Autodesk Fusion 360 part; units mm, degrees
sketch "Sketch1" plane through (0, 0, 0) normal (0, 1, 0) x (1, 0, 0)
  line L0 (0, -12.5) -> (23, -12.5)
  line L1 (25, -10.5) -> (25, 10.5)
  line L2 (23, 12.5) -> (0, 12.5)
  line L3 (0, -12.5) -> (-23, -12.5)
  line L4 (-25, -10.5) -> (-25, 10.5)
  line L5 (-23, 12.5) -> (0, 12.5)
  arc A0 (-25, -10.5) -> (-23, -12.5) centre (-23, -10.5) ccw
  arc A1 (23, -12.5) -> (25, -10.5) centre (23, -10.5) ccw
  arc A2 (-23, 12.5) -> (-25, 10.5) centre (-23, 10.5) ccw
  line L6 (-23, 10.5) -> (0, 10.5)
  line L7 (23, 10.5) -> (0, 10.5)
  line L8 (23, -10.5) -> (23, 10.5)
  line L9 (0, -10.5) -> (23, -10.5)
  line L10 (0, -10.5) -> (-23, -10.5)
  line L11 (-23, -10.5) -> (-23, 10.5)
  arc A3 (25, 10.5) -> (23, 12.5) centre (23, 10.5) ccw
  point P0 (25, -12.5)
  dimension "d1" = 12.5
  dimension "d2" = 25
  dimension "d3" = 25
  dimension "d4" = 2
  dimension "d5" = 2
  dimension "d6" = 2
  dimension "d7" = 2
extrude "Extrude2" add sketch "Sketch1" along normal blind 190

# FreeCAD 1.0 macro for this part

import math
import FreeCAD as App
import Part
import Sketcher

V = App.Vector

doc = App.newDocument("Part")
body = doc.addObject("PartDesign::Body", "Body")

# Sketch on XZ plane
sketch1 = body.newObject("Sketcher::SketchObject", "Sketch")
sketch1.AttachmentSupport = (doc.getObject("XZ_Plane"), [""])
sketch1.MapMode = "FlatFace"
sketch1.addGeometry(Part.LineSegment(V(-23, 12.5, 0), V(23, 12.5, 0)), False)
sketch1.addGeometry(Part.ArcOfCircle(Part.Circle(V(23, 10.5, 0), V(0, 0, 1), 2), math.radians(0), math.radians(90)), False)
sketch1.addGeometry(Part.LineSegment(V(25, 10.5, 0), V(25, -10.5, 0)), False)
sketch1.addGeometry(Part.ArcOfCircle(Part.Circle(V(23, -10.5, 0), V(0, 0, 1), 2), math.radians(-90), math.radians(0)), False)
sketch1.addGeometry(Part.LineSegment(V(23, -12.5, 0), V(-23, -12.5, 0)), False)
sketch1.addGeometry(Part.ArcOfCircle(Part.Circle(V(-23, -10.5, 0), V(0, 0, 1), 2), math.radians(180), math.radians(270)), False)
sketch1.addGeometry(Part.LineSegment(V(-25, -10.5, 0), V(-25, 10.5, 0)), False)
sketch1.addGeometry(Part.ArcOfCircle(Part.Circle(V(-23, 10.5, 0), V(0, 0, 1), 2), math.radians(90), math.radians(180)), False)
sketch1.addGeometry(Part.LineSegment(V(-23, 10.5, 0), V(-23, -10.5, 0)), False)
sketch1.addGeometry(Part.LineSegment(V(-23, -10.5, 0), V(23, -10.5, 0)), False)
sketch1.addGeometry(Part.LineSegment(V(23, -10.5, 0), V(23, 10.5, 0)), False)
sketch1.addGeometry(Part.LineSegment(V(23, 10.5, 0), V(-23, 10.5, 0)), False)
sketch1.addConstraint(Sketcher.Constraint("Tangent", 0, 2, 1, 2))
sketch1.addConstraint(Sketcher.Constraint("Tangent", 1, 1, 2, 1))
sketch1.addConstraint(Sketcher.Constraint("Tangent", 2, 2, 3, 2))
sketch1.addConstraint(Sketcher.Constraint("Tangent", 3, 1, 4, 1))
sketch1.addConstraint(Sketcher.Constraint("Tangent", 4, 2, 5, 2))
sketch1.addConstraint(Sketcher.Constraint("Tangent", 5, 1, 6, 1))
sketch1.addConstraint(Sketcher.Constraint("Tangent", 6, 2, 7, 2))
sketch1.addConstraint(Sketcher.Constraint("Tangent", 7, 1, 0, 1))
sketch1.addConstraint(Sketcher.Constraint("Coincident", 8, 2, 9, 1))
sketch1.addConstraint(Sketcher.Constraint("Coincident", 9, 2, 10, 1))
sketch1.addConstraint(Sketcher.Constraint("Coincident", 10, 2, 11, 1))
sketch1.addConstraint(Sketcher.Constraint("Coincident", 11, 2, 8, 1))
sketch1.addConstraint(Sketcher.Constraint("Horizontal", 0))
sketch1.addConstraint(Sketcher.Constraint("Vertical", 2))
sketch1.addConstraint(Sketcher.Constraint("Horizontal", 4))
sketch1.addConstraint(Sketcher.Constraint("Vertical", 6))
sketch1.addConstraint(Sketcher.Constraint("Vertical", 8))
sketch1.addConstraint(Sketcher.Constraint("Horizontal", 9))
sketch1.addConstraint(Sketcher.Constraint("Vertical", 10))
sketch1.addConstraint(Sketcher.Constraint("Horizontal", 11))
sketch1.addConstraint(Sketcher.Constraint("Coincident", 8, 2, 5, 3))
sketch1.addConstraint(Sketcher.Constraint("Coincident", 9, 2, 3, 3))
sketch1.addConstraint(Sketcher.Constraint("Coincident", 10, 2, 1, 3))
sketch1.addConstraint(Sketcher.Constraint("Equal", 5, 7))
sketch1.addConstraint(Sketcher.Constraint("Symmetric", 1, 3, 5, 3, -1, 1))
sketch1.addConstraint(Sketcher.Constraint("Radius", 1, 2.0))
sketch1.addConstraint(Sketcher.Constraint("DistanceX", -1, 1, 1, 1, 25.0))
sketch1.addConstraint(Sketcher.Constraint("DistanceY", 3, 1, 0, 2, 25.0))
pad1 = body.newObject("PartDesign::Pad", "Pad")
pad1.Profile = sketch1
pad1.Length = 190
pad1.Reversed = True

doc.recompute()
